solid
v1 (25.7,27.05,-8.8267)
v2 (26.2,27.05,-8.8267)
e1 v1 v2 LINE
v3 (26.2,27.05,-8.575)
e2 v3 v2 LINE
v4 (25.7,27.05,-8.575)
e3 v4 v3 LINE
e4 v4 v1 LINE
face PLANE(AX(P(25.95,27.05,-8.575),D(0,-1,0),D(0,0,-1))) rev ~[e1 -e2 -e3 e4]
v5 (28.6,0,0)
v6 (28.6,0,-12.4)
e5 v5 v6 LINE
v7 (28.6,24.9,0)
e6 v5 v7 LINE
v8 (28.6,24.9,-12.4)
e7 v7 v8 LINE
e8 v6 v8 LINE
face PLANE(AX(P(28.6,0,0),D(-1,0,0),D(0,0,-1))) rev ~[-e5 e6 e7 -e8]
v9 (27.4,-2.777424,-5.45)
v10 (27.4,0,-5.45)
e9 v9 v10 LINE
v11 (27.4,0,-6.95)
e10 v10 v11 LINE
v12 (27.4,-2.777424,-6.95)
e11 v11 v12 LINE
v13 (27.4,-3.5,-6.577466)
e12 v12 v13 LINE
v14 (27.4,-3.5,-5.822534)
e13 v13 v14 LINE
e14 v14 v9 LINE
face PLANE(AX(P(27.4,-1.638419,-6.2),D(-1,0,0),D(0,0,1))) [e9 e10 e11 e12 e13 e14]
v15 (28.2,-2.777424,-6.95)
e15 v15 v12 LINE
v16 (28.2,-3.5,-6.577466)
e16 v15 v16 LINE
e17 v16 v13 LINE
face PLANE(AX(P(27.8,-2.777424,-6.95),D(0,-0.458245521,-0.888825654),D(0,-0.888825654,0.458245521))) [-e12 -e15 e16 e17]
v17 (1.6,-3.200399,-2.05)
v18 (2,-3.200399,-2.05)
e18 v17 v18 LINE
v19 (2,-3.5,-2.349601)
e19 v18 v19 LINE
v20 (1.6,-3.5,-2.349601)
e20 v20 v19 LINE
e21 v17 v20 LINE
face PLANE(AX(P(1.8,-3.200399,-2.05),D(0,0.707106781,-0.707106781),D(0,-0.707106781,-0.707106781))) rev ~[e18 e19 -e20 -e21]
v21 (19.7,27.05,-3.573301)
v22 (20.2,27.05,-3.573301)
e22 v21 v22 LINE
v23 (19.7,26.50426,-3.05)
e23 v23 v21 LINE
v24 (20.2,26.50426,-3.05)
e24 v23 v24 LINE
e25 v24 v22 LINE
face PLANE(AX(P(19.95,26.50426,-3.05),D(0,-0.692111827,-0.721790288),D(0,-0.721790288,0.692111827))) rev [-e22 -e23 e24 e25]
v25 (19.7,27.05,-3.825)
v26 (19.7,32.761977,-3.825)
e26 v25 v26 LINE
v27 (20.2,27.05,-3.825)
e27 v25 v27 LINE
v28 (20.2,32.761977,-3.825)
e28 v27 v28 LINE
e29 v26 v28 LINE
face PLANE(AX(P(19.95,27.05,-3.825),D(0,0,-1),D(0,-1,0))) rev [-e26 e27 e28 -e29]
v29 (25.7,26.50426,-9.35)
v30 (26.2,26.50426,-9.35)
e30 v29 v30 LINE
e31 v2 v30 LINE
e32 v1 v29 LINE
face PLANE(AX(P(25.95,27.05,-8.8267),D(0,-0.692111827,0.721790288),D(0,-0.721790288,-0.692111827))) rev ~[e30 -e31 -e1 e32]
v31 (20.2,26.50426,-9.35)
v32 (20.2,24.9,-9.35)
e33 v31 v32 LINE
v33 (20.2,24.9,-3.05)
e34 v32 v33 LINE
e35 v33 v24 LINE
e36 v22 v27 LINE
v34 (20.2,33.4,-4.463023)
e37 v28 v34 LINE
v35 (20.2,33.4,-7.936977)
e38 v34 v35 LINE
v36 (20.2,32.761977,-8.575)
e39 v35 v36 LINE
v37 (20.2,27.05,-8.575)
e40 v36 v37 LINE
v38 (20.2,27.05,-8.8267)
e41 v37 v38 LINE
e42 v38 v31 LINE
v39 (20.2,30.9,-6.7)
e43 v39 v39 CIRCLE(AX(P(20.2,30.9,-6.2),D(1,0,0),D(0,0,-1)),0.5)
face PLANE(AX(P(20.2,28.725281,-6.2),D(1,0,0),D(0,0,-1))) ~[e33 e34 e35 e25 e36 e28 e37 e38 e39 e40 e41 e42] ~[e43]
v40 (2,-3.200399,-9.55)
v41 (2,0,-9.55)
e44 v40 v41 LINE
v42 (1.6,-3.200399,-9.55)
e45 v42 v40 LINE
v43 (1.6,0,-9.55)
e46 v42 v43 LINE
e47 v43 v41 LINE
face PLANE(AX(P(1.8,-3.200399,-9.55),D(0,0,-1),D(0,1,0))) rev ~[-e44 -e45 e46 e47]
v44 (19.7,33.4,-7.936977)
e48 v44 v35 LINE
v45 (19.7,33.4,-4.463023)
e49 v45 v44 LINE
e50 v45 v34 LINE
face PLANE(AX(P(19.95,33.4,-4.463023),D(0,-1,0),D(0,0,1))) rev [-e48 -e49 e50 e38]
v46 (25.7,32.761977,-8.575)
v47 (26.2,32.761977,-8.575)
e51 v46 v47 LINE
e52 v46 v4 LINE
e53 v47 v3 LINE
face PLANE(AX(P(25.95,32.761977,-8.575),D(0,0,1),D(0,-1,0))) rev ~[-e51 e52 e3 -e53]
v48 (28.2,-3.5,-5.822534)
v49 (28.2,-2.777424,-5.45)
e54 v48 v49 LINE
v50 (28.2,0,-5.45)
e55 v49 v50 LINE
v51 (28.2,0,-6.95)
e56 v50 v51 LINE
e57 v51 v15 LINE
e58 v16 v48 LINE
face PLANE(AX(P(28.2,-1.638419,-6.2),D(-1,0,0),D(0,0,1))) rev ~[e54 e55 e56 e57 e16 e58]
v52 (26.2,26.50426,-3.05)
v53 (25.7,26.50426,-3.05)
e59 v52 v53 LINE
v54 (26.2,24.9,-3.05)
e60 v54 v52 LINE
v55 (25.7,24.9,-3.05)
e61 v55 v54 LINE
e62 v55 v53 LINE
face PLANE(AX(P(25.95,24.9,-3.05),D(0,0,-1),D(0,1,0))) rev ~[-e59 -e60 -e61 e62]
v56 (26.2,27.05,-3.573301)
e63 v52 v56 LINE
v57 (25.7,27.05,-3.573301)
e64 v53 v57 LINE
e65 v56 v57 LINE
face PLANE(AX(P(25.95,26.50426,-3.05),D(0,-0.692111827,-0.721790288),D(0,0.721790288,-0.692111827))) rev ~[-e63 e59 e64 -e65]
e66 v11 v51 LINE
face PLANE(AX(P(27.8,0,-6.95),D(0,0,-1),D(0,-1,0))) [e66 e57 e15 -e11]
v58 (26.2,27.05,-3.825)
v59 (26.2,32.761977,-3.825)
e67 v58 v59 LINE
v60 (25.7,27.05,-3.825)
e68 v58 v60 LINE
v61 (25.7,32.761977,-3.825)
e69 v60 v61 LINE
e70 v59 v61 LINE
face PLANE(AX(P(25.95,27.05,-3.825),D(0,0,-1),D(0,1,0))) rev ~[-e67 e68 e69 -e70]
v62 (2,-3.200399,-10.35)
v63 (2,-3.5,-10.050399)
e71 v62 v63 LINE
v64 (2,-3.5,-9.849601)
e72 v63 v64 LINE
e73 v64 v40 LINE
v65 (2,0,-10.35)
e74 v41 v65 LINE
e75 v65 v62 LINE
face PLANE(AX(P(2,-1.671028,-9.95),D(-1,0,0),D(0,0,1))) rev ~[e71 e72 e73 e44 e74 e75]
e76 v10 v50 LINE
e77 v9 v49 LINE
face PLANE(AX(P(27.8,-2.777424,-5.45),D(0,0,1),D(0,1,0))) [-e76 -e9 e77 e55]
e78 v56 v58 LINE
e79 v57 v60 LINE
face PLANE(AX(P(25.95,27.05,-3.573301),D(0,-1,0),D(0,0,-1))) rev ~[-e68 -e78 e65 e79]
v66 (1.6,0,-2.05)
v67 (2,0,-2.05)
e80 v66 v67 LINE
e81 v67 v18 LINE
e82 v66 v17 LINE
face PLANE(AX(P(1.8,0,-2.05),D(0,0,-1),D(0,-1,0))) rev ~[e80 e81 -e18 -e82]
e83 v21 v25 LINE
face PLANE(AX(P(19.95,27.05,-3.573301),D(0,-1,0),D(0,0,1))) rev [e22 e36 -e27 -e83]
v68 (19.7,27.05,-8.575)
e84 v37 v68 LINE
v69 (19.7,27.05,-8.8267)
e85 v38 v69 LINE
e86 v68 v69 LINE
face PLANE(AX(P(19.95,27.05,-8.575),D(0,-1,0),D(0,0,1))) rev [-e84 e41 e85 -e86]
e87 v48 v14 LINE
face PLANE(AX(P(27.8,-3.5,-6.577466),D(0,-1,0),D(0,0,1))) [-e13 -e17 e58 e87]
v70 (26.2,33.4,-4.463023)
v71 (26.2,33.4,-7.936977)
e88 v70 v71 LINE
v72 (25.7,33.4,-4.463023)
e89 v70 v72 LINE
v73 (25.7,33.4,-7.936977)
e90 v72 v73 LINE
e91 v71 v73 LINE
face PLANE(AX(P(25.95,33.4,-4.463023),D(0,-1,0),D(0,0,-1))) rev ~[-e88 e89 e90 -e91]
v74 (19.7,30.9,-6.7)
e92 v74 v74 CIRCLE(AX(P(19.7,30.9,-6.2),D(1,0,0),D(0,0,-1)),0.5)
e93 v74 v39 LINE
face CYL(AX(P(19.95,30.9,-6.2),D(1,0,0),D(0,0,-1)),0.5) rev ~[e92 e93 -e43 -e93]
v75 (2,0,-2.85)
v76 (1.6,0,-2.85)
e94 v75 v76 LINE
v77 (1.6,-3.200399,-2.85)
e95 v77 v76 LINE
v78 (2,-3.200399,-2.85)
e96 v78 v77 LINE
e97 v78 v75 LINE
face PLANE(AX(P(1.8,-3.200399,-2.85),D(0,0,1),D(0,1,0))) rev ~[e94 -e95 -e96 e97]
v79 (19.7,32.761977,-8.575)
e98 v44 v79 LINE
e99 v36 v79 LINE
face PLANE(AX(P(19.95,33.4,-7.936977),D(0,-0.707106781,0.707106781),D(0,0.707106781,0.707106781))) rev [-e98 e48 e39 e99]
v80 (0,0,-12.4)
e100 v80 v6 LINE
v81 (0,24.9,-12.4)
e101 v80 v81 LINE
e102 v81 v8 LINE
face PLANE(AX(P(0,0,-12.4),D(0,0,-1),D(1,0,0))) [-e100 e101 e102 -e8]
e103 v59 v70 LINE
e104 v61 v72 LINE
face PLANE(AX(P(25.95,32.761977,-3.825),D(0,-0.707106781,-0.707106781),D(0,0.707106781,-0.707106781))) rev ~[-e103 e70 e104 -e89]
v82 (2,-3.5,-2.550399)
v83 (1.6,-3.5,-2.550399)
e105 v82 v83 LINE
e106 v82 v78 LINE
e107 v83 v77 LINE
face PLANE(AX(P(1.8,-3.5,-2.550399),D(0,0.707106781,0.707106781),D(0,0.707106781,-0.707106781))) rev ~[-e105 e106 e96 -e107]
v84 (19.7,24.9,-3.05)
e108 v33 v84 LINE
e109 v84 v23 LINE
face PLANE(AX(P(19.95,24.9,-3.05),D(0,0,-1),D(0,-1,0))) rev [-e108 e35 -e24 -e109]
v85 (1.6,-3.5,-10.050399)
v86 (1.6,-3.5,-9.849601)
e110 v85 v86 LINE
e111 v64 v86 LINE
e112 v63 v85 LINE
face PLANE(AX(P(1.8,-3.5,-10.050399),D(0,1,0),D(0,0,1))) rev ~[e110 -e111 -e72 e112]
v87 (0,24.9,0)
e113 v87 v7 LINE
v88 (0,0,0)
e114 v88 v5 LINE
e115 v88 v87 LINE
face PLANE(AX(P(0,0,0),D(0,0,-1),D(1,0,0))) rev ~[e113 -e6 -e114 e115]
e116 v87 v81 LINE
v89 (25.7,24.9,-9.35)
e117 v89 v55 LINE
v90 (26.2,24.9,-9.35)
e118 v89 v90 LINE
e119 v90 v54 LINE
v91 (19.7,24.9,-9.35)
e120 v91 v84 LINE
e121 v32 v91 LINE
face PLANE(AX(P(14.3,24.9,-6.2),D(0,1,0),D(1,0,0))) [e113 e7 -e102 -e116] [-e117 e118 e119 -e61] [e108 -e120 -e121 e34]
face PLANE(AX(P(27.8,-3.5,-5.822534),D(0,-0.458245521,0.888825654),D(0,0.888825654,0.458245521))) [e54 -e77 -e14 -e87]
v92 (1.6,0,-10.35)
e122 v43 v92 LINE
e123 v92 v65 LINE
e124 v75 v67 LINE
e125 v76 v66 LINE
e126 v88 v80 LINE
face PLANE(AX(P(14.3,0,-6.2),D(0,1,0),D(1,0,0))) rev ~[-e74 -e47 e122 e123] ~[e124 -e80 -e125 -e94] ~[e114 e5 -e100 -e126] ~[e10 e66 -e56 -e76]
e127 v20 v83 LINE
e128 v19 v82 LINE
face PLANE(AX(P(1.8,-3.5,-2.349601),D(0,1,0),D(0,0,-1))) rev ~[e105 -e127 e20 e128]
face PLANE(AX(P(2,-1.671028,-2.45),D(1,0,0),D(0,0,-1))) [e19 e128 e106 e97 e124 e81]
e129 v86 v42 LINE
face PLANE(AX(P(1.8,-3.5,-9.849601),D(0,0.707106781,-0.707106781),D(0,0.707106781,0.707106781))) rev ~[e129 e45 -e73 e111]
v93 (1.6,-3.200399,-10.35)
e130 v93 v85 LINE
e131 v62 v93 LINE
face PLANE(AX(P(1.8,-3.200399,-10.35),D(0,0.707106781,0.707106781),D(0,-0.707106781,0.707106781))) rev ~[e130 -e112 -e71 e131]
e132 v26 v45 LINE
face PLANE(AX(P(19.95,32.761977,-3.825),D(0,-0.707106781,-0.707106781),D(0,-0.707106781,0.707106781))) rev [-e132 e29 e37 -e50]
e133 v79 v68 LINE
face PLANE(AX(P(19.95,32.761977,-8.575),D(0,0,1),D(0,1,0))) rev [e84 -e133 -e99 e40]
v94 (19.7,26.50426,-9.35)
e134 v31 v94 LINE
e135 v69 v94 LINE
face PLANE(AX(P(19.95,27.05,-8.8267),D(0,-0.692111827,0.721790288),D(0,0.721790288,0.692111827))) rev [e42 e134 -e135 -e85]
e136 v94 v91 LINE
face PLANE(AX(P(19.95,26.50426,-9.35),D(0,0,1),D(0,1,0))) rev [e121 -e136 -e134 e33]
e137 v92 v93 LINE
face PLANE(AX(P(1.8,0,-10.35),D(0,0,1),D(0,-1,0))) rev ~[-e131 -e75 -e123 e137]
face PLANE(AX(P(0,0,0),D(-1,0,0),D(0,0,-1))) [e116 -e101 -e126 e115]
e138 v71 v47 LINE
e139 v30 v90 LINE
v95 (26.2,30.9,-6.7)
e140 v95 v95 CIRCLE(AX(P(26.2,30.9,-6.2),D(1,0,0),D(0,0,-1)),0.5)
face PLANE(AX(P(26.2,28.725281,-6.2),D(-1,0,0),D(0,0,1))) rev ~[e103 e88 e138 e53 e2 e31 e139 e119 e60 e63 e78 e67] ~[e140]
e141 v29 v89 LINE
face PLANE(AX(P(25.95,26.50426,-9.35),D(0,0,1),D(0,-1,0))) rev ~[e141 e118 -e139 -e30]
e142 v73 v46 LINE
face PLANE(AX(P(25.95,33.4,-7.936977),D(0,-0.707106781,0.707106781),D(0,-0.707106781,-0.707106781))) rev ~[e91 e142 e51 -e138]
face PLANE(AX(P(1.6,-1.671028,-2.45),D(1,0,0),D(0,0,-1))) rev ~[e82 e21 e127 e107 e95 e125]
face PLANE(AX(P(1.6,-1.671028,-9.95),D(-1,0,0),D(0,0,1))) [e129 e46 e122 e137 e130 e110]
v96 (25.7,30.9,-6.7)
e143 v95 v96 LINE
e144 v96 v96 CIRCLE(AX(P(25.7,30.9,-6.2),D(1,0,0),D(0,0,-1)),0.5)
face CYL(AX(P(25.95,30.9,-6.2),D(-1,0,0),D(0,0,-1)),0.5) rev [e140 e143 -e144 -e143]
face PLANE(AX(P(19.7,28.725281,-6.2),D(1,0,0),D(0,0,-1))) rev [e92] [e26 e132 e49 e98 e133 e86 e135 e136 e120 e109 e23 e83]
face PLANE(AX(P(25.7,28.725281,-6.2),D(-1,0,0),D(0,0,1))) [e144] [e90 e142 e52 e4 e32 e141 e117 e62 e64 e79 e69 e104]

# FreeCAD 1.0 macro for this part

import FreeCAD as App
import Part
import Sketcher
Q = App.Units.Quantity


def add_polygon(sketch, points):
    """Adds a closed chain of lines whose ends are joined by coincident constraints."""
    first, n = sketch.GeometryCount, len(points)
    for a, b in zip(points, points[1:] + points[:1]):
        sketch.addGeometry(Part.LineSegment(App.Vector(*a, 0), App.Vector(*b, 0)), False)
    for i in range(n):
        sketch.addConstraint(Sketcher.Constraint("Coincident", first + i, 2, first + (i + 1) % n, 1))

doc = App.newDocument("Part")
body = doc.addObject("PartDesign::Body", "Body")

# Sketch on XZ plane
sketch1 = doc.addObject("Sketcher::SketchObject", "Sketch")
body.addObject(sketch1)
sketch1.AttachmentSupport = (doc.XZ_Plane, [""])
sketch1.MapMode = "FlatFace"
add_polygon(sketch1, [(0, -12), (0, 0), (29, 0), (29, -12)])  # lines 0-3
sketch1.addConstraint([
    Sketcher.Constraint("Vertical", 0),
    Sketcher.Constraint("Horizontal", 1),
    Sketcher.Constraint("Vertical", 2),
    Sketcher.Constraint("Horizontal", 3),
    Sketcher.Constraint("Coincident", 0, 2, -1, 1),
    Sketcher.Constraint("DistanceX", 1, 1, 1, 2, Q("28.6 mm")),
    Sketcher.Constraint("DistanceY", 0, 1, 0, 2, Q("12.4 mm")),
])
pad1 = doc.addObject("PartDesign::Pad", "Pad")
body.addObject(pad1)
pad1.Profile = sketch1
pad1.Length = 24.9
pad1.Reversed = True

# Sketch on YZ plane
sketch2 = doc.addObject("Sketcher::SketchObject", "Sketch001")
body.addObject(sketch2)
sketch2.AttachmentSupport = (doc.YZ_Plane, [""])
sketch2.MapMode = "FlatFace"
sketch2.AttachmentOffset = App.Placement(App.Vector(0, 0, 25.95), App.Rotation())
add_polygon(sketch2, [(26.5, -3.05), (24.9, -3.05), (24.9, -9.35), (26.5, -9.35), (27.05, -8.83), (27.05, -8.57), (32.76, -8.57), (33.4, -7.94), (33.4, -4.46), (32.76, -3.83), (27.05, -3.83), (27.05, -3.57)])  # lines 0-11
sketch2.addGeometry(Part.Circle(App.Vector(30.9, -6.2, 0), App.Vector(0, 0, 1), 0.5), False)  # 12
sketch2.addConstraint([
    Sketcher.Constraint("Horizontal", 0),
    Sketcher.Constraint("Vertical", 1),
    Sketcher.Constraint("Horizontal", 2),
    Sketcher.Constraint("Vertical", 4),
    Sketcher.Constraint("Horizontal", 5),
    Sketcher.Constraint("Vertical", 7),
    Sketcher.Constraint("Horizontal", 9),
    Sketcher.Constraint("Vertical", 10),
    Sketcher.Constraint("Perpendicular", 6, 8),
    Sketcher.Constraint("Vertical", 5, 2, 8, 2),
    Sketcher.Constraint("Vertical", 4, 2, 9, 2),
    Sketcher.Constraint("Vertical", 2, 2, 11, 2),
    Sketcher.Constraint("Equal", 4, 10),
    Sketcher.Constraint("Equal", 6, 8),
    Sketcher.Constraint("Equal", 3, 11),
    Sketcher.Constraint("Diameter", 12, Q("1 mm")),
    Sketcher.Constraint("DistanceY", 1, 2, 1, 1, Q("6.3 mm")),
    Sketcher.Constraint("DistanceX", 0, 2, 12, 3, Q("6 mm")),
    Sketcher.Constraint("DistanceX", -1, 1, 12, 3, Q("30.9 mm")),
    Sketcher.Constraint("DistanceY", 12, 3, -1, 1, Q("6.2 mm")),
    Sketcher.Constraint("DistanceX", -1, 1, 6, 2, Q("33.4 mm")),
    Sketcher.Constraint("DistanceY", 0, 2, -1, 1, Q("3.05 mm")),
    Sketcher.Constraint("DistanceX", -1, 1, 3, 2, Q("27.05 mm")),
    Sketcher.Constraint("DistanceY", 5, 2, 8, 2, Q("4.75 mm")),
    Sketcher.Constraint("DistanceY", 4, 1, 4, 2, Q("0.2517 mm")),
    Sketcher.Constraint("Distance", 6, Q("0.902301 mm")),
    Sketcher.Constraint("DistanceX", 0, 2, 0, 1, Q("1.60426 mm")),
])
pad2 = doc.addObject("PartDesign::Pad", "Pad001")
body.addObject(pad2)
pad2.Profile = sketch2
pad2.Length = 0.5
pad2.Midplane = True
doc.recompute()

datumplane = doc.addObject("PartDesign::Plane", "DatumPlane")
body.addObject(datumplane)
datumplane.AttachmentSupport = (doc.YZ_Plane, [""])
datumplane.MapMode = "FlatFace"
datumplane.AttachmentOffset = App.Placement(App.Vector(0, 0, 22.95), App.Rotation())
mirrored = doc.addObject("PartDesign::Mirrored", "Mirrored")
body.addObject(mirrored)
mirrored.Originals = [pad2]
mirrored.MirrorPlane = (datumplane, [""])
body.Tip = mirrored

# Sketch on YZ plane
sketch3 = doc.addObject("Sketcher::SketchObject", "Sketch002")
body.addObject(sketch3)
sketch3.AttachmentSupport = (doc.YZ_Plane, [""])
sketch3.MapMode = "FlatFace"
sketch3.AttachmentOffset = App.Placement(App.Vector(0, 0, 27.8), App.Rotation())
add_polygon(sketch3, [(0, -7), (-2.8, -7), (-3.5, -6.6), (-3.5, -5.8), (-2.8, -5.5), (0, -5.5)])  # lines 0-5
sketch3.addConstraint([
    Sketcher.Constraint("Horizontal", 0),
    Sketcher.Constraint("Vertical", 2),
    Sketcher.Constraint("Horizontal", 4),
    Sketcher.Constraint("Vertical", 5),
    Sketcher.Constraint("PointOnObject", 4, 2, -2),
    Sketcher.Constraint("Vertical", 0, 2, 3, 2),
    Sketcher.Constraint("Equal", 1, 3),
    Sketcher.Constraint("DistanceY", 5, 2, 5, 1, Q("1.5 mm")),
    Sketcher.Constraint("DistanceX", 1, 2, -1, 1, Q("3.5 mm")),
    Sketcher.Constraint("DistanceY", 0, 2, -1, 1, Q("6.95 mm")),
    Sketcher.Constraint("DistanceX", 0, 2, 0, 1, Q("2.777424 mm")),
    Sketcher.Constraint("DistanceY", 2, 1, 2, 2, Q("0.754933 mm")),
])
pad3 = doc.addObject("PartDesign::Pad", "Pad002")
body.addObject(pad3)
pad3.Profile = sketch3
pad3.Length = 0.8
pad3.Midplane = True

# Sketch on YZ plane
sketch4 = doc.addObject("Sketcher::SketchObject", "Sketch003")
body.addObject(sketch4)
sketch4.AttachmentSupport = (doc.YZ_Plane, [""])
sketch4.MapMode = "FlatFace"
sketch4.AttachmentOffset = App.Placement(App.Vector(0, 0, 1.8), App.Rotation())
add_polygon(sketch4, [(0, -10.35), (-3.2, -10.35), (-3.5, -10.05), (-3.5, -9.85), (-3.2, -9.55), (0, -9.55)])  # lines 0-5
add_polygon(sketch4, [(0, -2.05), (0, -2.85), (-3.2, -2.85), (-3.5, -2.55), (-3.5, -2.35), (-3.2, -2.05)])  # lines 6-11
sketch4.addConstraint([
    Sketcher.Constraint("Horizontal", 0),
    Sketcher.Constraint("Vertical", 2),
    Sketcher.Constraint("Horizontal", 4),
    Sketcher.Constraint("Vertical", 5),
    Sketcher.Constraint("Vertical", 6),
    Sketcher.Constraint("Horizontal", 7),
    Sketcher.Constraint("Vertical", 9),
    Sketcher.Constraint("Horizontal", 11),
    Sketcher.Constraint("PointOnObject", 4, 2, -2),
    Sketcher.Constraint("PointOnObject", 6, 2, -2),
    Sketcher.Constraint("Perpendicular", 1, 3),
    Sketcher.Constraint("Perpendicular", 3, 8),
    Sketcher.Constraint("Perpendicular", 8, 10),
    Sketcher.Constraint("Vertical", 0, 2, 3, 2),
    Sketcher.Constraint("Vertical", 3, 2, 7, 2),
    Sketcher.Constraint("Vertical", 2, 2, 8, 2),
    Sketcher.Constraint("Vertical", 7, 2, 10, 2),
    Sketcher.Constraint("Equal", 5, 6),
    Sketcher.Constraint("Equal", 1, 3),
    Sketcher.Constraint("DistanceY", 5, 2, 5, 1, Q("0.8 mm")),
    Sketcher.Constraint("DistanceX", 1, 2, -1, 1, Q("3.5 mm")),
    Sketcher.Constraint("DistanceY", 4, 2, 6, 2, Q("6.7 mm")),
    Sketcher.Constraint("DistanceY", 0, 2, -1, 1, Q("10.35 mm")),
    Sketcher.Constraint("DistanceX", 0, 2, 0, 1, Q("3.200399 mm")),
])
pad4 = doc.addObject("PartDesign::Pad", "Pad003")
body.addObject(pad4)
pad4.Profile = sketch4
pad4.Length = 0.4
pad4.Midplane = True

doc.recompute()
